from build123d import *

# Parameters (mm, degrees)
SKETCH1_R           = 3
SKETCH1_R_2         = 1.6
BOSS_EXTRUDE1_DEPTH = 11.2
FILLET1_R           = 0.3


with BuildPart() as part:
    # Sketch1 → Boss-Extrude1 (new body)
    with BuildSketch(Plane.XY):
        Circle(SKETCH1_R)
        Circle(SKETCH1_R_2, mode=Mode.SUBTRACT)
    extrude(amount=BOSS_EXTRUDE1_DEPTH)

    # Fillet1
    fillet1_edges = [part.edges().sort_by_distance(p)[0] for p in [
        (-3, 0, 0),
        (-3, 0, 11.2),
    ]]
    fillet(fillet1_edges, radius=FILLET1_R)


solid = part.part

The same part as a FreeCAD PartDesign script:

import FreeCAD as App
import Part
import Sketcher


def edges_at(feature, points):
    """Names of the edges that pass closest to the given points."""
    edges = feature.Shape.Edges
    near = lambda p: min(range(len(edges)), key=lambda i: edges[i].distToShape(Part.Vertex(*p))[0])
    return sorted({f"Edge{near(p) + 1}" for p in points})

doc = App.newDocument("Part")
body = doc.addObject("PartDesign::Body", "Body")

sketch1 = doc.addObject("Sketcher::SketchObject", "Sketch")
body.addObject(sketch1)
sketch1.AttachmentSupport = (doc.XY_Plane, [""])
sketch1.MapMode = "FlatFace"
sketch1.addGeometry([
    Part.Circle(App.Vector(0, 0, 0), App.Vector(0, 0, 1), 3),
    Part.Circle(App.Vector(0, 0, 0), App.Vector(0, 0, 1), 1.6),
], False)
sketch1.addConstraint([
    Sketcher.Constraint("Coincident", 0, 3, -1, 1),
    Sketcher.Constraint("Coincident", 1, 3, -1, 1),
    Sketcher.Constraint("Diameter", 0, 6.0),
    Sketcher.Constraint("Diameter", 1, 3.2),
])
pad1 = doc.addObject("PartDesign::Pad", "Pad")
body.addObject(pad1)
pad1.Profile = sketch1
pad1.Length = 11.2
doc.recompute()

fillet = doc.addObject("PartDesign::Fillet", "Fillet")
body.addObject(fillet)
fillet.Base = (pad1, edges_at(pad1, [(-3, 0, 0), (-3, 0, 11.2)]))
fillet.Radius = 0.3

doc.recompute()
